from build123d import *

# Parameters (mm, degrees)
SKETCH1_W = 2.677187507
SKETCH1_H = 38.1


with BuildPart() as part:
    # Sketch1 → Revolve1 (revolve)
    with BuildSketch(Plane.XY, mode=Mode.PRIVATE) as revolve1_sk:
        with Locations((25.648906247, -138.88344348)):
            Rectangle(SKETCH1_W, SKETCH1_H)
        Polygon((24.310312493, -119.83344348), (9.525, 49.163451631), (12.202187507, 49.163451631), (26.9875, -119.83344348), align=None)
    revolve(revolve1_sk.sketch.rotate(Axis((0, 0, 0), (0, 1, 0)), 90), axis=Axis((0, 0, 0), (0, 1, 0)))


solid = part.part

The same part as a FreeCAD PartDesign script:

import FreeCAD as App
import Part
import Sketcher

V = App.Vector
Q = App.Units.Quantity


def add_polygon(sketch, points):
    """Adds a closed chain of lines whose ends are joined by coincident constraints."""
    first, n = sketch.GeometryCount, len(points)
    for a, b in zip(points, points[1:] + points[:1]):
        sketch.addGeometry(Part.LineSegment(App.Vector(*a, 0), App.Vector(*b, 0)), False)
    for i in range(n):
        sketch.addConstraint(Sketcher.Constraint("Coincident", first + i, 2, first + (i + 1) % n, 1))

doc = App.newDocument("Part")
body = doc.addObject("PartDesign::Body", "Body")

sketch1 = body.newObject("Sketcher::SketchObject", "Sketch")
sketch1.AttachmentSupport = (doc.getObject("XY_Plane"), [""])
sketch1.MapMode = "FlatFace"
add_polygon(sketch1, [(24.310312, -119.833443), (24.310312, -157.933443), (26.9875, -157.933443), (26.9875, -119.833443), (12.202188, 49.163452), (9.525, 49.163452)])
sketch1.addConstraint([
    Sketcher.Constraint("Vertical", 0),
    Sketcher.Constraint("Horizontal", 1),
    Sketcher.Constraint("Vertical", 2),
    Sketcher.Constraint("Horizontal", 4),
    Sketcher.Constraint("Parallel", 3, 5),
    Sketcher.Constraint("Horizontal", 2, 2, 5, 2),
    Sketcher.Constraint("DistanceY", 0, 2, 0, 1, Q("1.5 in")),
    Sketcher.Constraint("Angle", 3, Q("95 deg")),
    Sketcher.Constraint("DistanceX", -1, 1, 1, 2, Q("1.0625 in")),
    Sketcher.Constraint("DistanceX", -1, 1, 4, 2, Q("0.375 in")),
    Sketcher.Constraint("DistanceX", 1, 1, 1, 2, Q("2.677188 mm")),
    Sketcher.Constraint("DistanceY", -1, 1, 3, 2, Q("49.163452 mm")),
])
revolution = body.newObject("PartDesign::Revolution", "Revolution")
revolution.Profile = sketch1
revolution.ReferenceAxis = (sketch1, ["V_Axis"])
revolution.Angle = 360

doc.recompute()
